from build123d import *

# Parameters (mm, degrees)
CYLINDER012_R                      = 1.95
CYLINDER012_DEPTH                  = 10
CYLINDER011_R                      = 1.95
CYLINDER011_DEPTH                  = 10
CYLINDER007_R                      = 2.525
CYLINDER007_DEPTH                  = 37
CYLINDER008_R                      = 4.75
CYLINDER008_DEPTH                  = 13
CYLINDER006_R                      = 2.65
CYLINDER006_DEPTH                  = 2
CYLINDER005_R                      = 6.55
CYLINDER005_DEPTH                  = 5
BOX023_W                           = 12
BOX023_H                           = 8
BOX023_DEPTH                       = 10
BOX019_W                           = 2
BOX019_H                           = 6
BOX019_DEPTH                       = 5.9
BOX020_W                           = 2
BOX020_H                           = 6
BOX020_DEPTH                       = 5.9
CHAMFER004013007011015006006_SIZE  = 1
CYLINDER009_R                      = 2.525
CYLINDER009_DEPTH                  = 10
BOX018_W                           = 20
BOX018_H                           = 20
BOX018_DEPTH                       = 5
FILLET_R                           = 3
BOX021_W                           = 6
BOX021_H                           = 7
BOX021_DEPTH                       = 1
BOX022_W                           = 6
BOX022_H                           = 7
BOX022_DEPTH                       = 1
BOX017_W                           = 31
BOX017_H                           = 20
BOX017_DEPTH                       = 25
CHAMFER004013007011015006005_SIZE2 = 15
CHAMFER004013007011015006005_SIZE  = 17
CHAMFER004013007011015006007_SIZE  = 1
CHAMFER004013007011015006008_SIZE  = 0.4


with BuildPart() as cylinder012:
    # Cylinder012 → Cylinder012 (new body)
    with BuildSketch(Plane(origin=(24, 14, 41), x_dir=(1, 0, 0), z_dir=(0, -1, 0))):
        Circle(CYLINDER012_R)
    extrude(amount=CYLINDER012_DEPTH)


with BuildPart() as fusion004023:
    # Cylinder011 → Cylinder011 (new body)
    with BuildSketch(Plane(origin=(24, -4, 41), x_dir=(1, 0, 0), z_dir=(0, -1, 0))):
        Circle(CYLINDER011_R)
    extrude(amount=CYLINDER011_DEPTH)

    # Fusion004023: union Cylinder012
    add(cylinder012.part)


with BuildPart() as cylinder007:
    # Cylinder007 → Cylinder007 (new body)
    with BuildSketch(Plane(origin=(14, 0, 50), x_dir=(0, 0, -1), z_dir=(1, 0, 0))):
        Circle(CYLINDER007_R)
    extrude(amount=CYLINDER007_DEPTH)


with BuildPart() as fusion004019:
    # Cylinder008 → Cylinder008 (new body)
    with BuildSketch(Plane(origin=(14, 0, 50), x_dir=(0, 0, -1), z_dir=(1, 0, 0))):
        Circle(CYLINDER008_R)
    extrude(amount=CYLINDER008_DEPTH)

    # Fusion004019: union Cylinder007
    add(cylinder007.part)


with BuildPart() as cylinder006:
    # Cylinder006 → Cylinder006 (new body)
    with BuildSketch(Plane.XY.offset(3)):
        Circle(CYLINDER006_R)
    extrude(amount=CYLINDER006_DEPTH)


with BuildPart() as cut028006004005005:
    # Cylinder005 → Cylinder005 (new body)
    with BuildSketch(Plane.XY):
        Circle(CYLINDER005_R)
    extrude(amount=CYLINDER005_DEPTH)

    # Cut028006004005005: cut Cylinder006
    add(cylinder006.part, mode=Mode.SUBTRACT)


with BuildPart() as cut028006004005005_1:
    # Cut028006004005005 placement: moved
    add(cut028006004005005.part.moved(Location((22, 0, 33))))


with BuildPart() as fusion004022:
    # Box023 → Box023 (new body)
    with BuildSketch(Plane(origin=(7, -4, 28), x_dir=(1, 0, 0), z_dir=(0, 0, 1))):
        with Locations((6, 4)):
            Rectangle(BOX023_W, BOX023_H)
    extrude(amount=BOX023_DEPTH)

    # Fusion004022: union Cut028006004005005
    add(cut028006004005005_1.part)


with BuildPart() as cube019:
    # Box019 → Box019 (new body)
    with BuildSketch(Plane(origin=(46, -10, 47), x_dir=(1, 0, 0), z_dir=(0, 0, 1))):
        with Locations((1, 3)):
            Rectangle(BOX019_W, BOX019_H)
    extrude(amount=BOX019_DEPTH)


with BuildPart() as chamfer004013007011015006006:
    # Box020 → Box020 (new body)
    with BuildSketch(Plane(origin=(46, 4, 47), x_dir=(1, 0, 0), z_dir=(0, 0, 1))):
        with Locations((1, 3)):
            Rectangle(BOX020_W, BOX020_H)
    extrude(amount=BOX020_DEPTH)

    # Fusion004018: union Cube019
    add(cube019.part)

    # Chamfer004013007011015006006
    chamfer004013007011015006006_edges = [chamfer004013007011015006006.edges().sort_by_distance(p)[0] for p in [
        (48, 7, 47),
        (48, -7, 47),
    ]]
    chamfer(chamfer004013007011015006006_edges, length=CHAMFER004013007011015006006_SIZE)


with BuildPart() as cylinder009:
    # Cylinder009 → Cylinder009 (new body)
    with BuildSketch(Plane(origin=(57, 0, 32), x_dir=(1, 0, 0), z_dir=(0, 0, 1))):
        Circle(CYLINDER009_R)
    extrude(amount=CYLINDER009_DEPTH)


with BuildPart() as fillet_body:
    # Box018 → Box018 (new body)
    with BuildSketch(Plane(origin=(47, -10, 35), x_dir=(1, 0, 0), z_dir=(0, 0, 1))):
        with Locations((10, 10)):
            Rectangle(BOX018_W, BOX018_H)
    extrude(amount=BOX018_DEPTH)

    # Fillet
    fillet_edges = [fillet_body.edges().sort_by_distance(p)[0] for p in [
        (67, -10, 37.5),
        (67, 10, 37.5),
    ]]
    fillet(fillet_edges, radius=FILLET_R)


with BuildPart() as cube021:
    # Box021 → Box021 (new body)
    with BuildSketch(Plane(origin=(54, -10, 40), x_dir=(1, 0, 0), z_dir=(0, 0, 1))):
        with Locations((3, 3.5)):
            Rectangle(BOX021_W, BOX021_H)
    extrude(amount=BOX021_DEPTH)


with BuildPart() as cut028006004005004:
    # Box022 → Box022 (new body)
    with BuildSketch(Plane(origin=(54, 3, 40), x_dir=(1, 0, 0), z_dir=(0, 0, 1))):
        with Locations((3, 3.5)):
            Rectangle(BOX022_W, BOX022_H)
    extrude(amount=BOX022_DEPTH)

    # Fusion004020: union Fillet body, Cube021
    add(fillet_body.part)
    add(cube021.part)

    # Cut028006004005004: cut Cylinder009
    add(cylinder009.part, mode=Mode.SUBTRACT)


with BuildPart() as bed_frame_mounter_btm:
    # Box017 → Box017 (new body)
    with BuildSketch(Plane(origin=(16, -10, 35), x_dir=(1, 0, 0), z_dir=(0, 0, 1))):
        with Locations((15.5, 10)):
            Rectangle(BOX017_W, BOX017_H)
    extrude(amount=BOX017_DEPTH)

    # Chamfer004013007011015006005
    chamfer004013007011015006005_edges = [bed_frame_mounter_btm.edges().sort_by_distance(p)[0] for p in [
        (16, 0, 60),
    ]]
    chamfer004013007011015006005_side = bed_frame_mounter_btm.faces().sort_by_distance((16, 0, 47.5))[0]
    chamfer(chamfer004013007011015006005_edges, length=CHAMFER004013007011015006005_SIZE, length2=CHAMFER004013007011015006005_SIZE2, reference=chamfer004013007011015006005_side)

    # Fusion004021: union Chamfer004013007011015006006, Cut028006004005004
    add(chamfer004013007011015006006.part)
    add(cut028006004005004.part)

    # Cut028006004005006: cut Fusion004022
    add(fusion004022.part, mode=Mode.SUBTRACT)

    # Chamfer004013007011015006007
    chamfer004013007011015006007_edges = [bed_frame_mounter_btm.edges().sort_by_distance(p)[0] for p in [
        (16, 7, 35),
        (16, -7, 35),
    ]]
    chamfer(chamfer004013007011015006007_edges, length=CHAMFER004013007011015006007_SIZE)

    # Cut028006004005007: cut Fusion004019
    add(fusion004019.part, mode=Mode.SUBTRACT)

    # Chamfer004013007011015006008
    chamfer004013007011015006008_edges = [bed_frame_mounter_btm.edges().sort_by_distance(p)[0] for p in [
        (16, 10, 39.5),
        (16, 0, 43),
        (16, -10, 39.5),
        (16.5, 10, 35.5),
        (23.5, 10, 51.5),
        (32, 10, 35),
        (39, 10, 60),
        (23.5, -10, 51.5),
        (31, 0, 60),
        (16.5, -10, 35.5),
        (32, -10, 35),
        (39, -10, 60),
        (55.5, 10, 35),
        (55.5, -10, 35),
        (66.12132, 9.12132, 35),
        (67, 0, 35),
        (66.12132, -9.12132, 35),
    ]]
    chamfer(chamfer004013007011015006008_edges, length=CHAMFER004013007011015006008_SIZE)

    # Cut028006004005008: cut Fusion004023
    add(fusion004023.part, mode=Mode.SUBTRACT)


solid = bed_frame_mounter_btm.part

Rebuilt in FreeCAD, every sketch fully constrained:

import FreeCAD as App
import Part
import Sketcher

V = App.Vector
Q = App.Units.Quantity


def edges_at(feature, points):
    """Names of the edges that pass closest to the given points."""
    edges = feature.Shape.Edges
    near = lambda p: min(range(len(edges)), key=lambda i: edges[i].distToShape(Part.Vertex(*p))[0])
    return sorted({f"Edge{near(p) + 1}" for p in points})

doc = App.newDocument("Part")
body = doc.addObject("PartDesign::Body", "Body")

sketch1 = body.newObject("Sketcher::SketchObject", "Sketch")
sketch1.AttachmentSupport = (doc.getObject("XZ_Plane"), [""])
sketch1.MapMode = "FlatFace"
sketch1.AttachmentOffset = App.Placement(V(0, 0, -14), App.Rotation())
sketch1.addGeometry(Part.Circle(V(24, 41, 0), V(0, 0, 1), 1.9), False)
sketch1.addConstraint([
    Sketcher.Constraint("Diameter", 0, Q("3.9 mm")),
    Sketcher.Constraint("DistanceX", -1, 1, 0, 3, Q("24 mm")),
    Sketcher.Constraint("DistanceY", -1, 1, 0, 3, Q("41 mm")),
])
pad1 = body.newObject("PartDesign::Pad", "Pad")
pad1.Profile = sketch1
pad1.Length = 10
body2 = doc.addObject("PartDesign::Body", "Body001")
body2.AllowCompound = True

sketch2 = body2.newObject("Sketcher::SketchObject", "Sketch001")
sketch2.AttachmentSupport = (doc.getObject("XZ_Plane001"), [""])
sketch2.MapMode = "FlatFace"
sketch2.AttachmentOffset = App.Placement(V(0, 0, 4), App.Rotation())
sketch2.addGeometry(Part.Circle(V(24, 41, 0), V(0, 0, 1), 1.9), False)
sketch2.addConstraint([
    Sketcher.Constraint("Diameter", 0, Q("3.9 mm")),
    Sketcher.Constraint("DistanceX", -1, 1, 0, 3, Q("24 mm")),
    Sketcher.Constraint("DistanceY", -1, 1, 0, 3, Q("41 mm")),
])
pad2 = body2.newObject("PartDesign::Pad", "Pad001")
pad2.Profile = sketch2
pad2.Length = 10
doc.recompute()

boolean = body2.newObject("PartDesign::Boolean", "Boolean")
boolean.Type = "Fuse"
boolean.addObjects([body])
body3 = doc.addObject("PartDesign::Body", "Body002")

sketch3 = body3.newObject("Sketcher::SketchObject", "Sketch002")
sketch3.AttachmentSupport = (doc.getObject("YZ_Plane002"), [""])
sketch3.MapMode = "FlatFace"
sketch3.AttachmentOffset = App.Placement(V(0, 0, 14), App.Rotation())
sketch3.addGeometry(Part.Circle(V(0, 50, 0), V(0, 0, 1), 2.5), False)
sketch3.addConstraint([
    Sketcher.Constraint("PointOnObject", 0, 3, -2),
    Sketcher.Constraint("Diameter", 0, Q("5.05 mm")),
    Sketcher.Constraint("DistanceY", -1, 1, 0, 3, Q("50 mm")),
])
pad3 = body3.newObject("PartDesign::Pad", "Pad002")
pad3.Profile = sketch3
pad3.Length = 37
body4 = doc.addObject("PartDesign::Body", "Body003")

sketch4 = body4.newObject("Sketcher::SketchObject", "Sketch003")
sketch4.AttachmentSupport = (doc.getObject("YZ_Plane003"), [""])
sketch4.MapMode = "FlatFace"
sketch4.AttachmentOffset = App.Placement(V(0, 0, 14), App.Rotation())
sketch4.addGeometry(Part.Circle(V(0, 50, 0), V(0, 0, 1), 4.8), False)
sketch4.addConstraint([
    Sketcher.Constraint("PointOnObject", 0, 3, -2),
    Sketcher.Constraint("Diameter", 0, Q("9.5 mm")),
    Sketcher.Constraint("DistanceY", -1, 1, 0, 3, Q("50 mm")),
])
pad4 = body4.newObject("PartDesign::Pad", "Pad003")
pad4.Profile = sketch4
pad4.Length = 13
doc.recompute()

boolean2 = body4.newObject("PartDesign::Boolean", "Boolean001")
boolean2.Type = "Fuse"
boolean2.addObjects([body3])
body5 = doc.addObject("PartDesign::Body", "Body004")

sketch5 = body5.newObject("Sketcher::SketchObject", "Sketch004")
sketch5.AttachmentSupport = (doc.getObject("XY_Plane004"), [""])
sketch5.MapMode = "FlatFace"
sketch5.AttachmentOffset = App.Placement(V(0, 0, 3), App.Rotation())
sketch5.addGeometry(Part.Circle(V(0, 0, 0), V(0, 0, 1), 2.6), False)
sketch5.addConstraint([
    Sketcher.Constraint("Coincident", 0, 3, -1, 1),
    Sketcher.Constraint("Diameter", 0, Q("5.3 mm")),
])
pad5 = body5.newObject("PartDesign::Pad", "Pad004")
pad5.Profile = sketch5
pad5.Length = 2
body6 = doc.addObject("PartDesign::Body", "Body005")

sketch6 = body6.newObject("Sketcher::SketchObject", "Sketch005")
sketch6.AttachmentSupport = (doc.getObject("XY_Plane005"), [""])
sketch6.MapMode = "FlatFace"
sketch6.addGeometry(Part.Circle(V(0, 0, 0), V(0, 0, 1), 7), False)
sketch6.addConstraint([
    Sketcher.Constraint("Coincident", 0, 3, -1, 1),
    Sketcher.Constraint("Diameter", 0, Q("13.1 mm")),
])
pad6 = body6.newObject("PartDesign::Pad", "Pad005")
pad6.Profile = sketch6
pad6.Length = 5
doc.recompute()

boolean3 = body6.newObject("PartDesign::Boolean", "Boolean002")
boolean3.Type = "Cut"
boolean3.addObjects([body5])
body7 = doc.addObject("PartDesign::Body", "Body006")
doc.recompute()

body6.Placement = App.Placement(V(22, 0, 33), App.Rotation(V(0, 0, 1), 0))
boolean4 = body7.newObject("PartDesign::Boolean", "Boolean003")
boolean4.Type = "Fuse"
boolean4.addObjects([body6])
body8 = doc.addObject("PartDesign::Body", "Body007")

sketch7 = body8.newObject("Sketcher::SketchObject", "Sketch006")
sketch7.AttachmentSupport = (doc.getObject("XY_Plane007"), [""])
sketch7.MapMode = "FlatFace"
sketch7.AttachmentOffset = App.Placement(V(0, 0, 28), App.Rotation())
sketch7.addGeometry([
    Part.LineSegment(V(7, 4, 0), V(7, -4, 0)),
    Part.LineSegment(V(7, -4, 0), V(19, -4, 0)),
    Part.LineSegment(V(19, -4, 0), V(19, 4, 0)),
    Part.LineSegment(V(19, 4, 0), V(7, 4, 0)),
], False)
sketch7.addConstraint([
    Sketcher.Constraint("Coincident", 0, 2, 1, 1),
    Sketcher.Constraint("Coincident", 1, 2, 2, 1),
    Sketcher.Constraint("Coincident", 2, 2, 3, 1),
    Sketcher.Constraint("Coincident", 3, 2, 0, 1),
    Sketcher.Constraint("Vertical", 0),
    Sketcher.Constraint("Horizontal", 1),
    Sketcher.Constraint("Vertical", 2),
    Sketcher.Constraint("Horizontal", 3),
    Sketcher.Constraint("DistanceX", 1, 1, 1, 2, Q("12 mm")),
    Sketcher.Constraint("DistanceY", 0, 2, 0, 1, Q("8 mm")),
    Sketcher.Constraint("DistanceX", -1, 1, 0, 2, Q("7 mm")),
    Sketcher.Constraint("DistanceY", 0, 2, -1, 1, Q("4 mm")),
])
pad7 = body8.newObject("PartDesign::Pad", "Pad006")
pad7.Profile = sketch7
pad7.Length = 10
doc.recompute()

boolean5 = body8.newObject("PartDesign::Boolean", "Boolean004")
boolean5.Type = "Fuse"
boolean5.addObjects([body7])
body9 = doc.addObject("PartDesign::Body", "Body008")

sketch8 = body9.newObject("Sketcher::SketchObject", "Sketch007")
sketch8.AttachmentSupport = (doc.getObject("XY_Plane008"), [""])
sketch8.MapMode = "FlatFace"
sketch8.AttachmentOffset = App.Placement(V(0, 0, 47), App.Rotation())
sketch8.addGeometry([
    Part.LineSegment(V(46, -4, 0), V(46, -10, 0)),
    Part.LineSegment(V(46, -10, 0), V(48, -10, 0)),
    Part.LineSegment(V(48, -10, 0), V(48, -4, 0)),
    Part.LineSegment(V(48, -4, 0), V(46, -4, 0)),
], False)
sketch8.addConstraint([
    Sketcher.Constraint("Coincident", 0, 2, 1, 1),
    Sketcher.Constraint("Coincident", 1, 2, 2, 1),
    Sketcher.Constraint("Coincident", 2, 2, 3, 1),
    Sketcher.Constraint("Coincident", 3, 2, 0, 1),
    Sketcher.Constraint("Vertical", 0),
    Sketcher.Constraint("Horizontal", 1),
    Sketcher.Constraint("Vertical", 2),
    Sketcher.Constraint("Horizontal", 3),
    Sketcher.Constraint("DistanceX", 1, 1, 1, 2, Q("2 mm")),
    Sketcher.Constraint("DistanceY", 0, 2, 0, 1, Q("6 mm")),
    Sketcher.Constraint("DistanceX", -1, 1, 0, 2, Q("46 mm")),
    Sketcher.Constraint("DistanceY", 0, 2, -1, 1, Q("10 mm")),
])
pad8 = body9.newObject("PartDesign::Pad", "Pad007")
pad8.Profile = sketch8
pad8.Length = 5.9
body10 = doc.addObject("PartDesign::Body", "Body009")
body10.AllowCompound = True

sketch9 = body10.newObject("Sketcher::SketchObject", "Sketch008")
sketch9.AttachmentSupport = (doc.getObject("XY_Plane009"), [""])
sketch9.MapMode = "FlatFace"
sketch9.AttachmentOffset = App.Placement(V(0, 0, 47), App.Rotation())
sketch9.addGeometry([
    Part.LineSegment(V(46, 10, 0), V(46, 4, 0)),
    Part.LineSegment(V(46, 4, 0), V(48, 4, 0)),
    Part.LineSegment(V(48, 4, 0), V(48, 10, 0)),
    Part.LineSegment(V(48, 10, 0), V(46, 10, 0)),
], False)
sketch9.addConstraint([
    Sketcher.Constraint("Coincident", 0, 2, 1, 1),
    Sketcher.Constraint("Coincident", 1, 2, 2, 1),
    Sketcher.Constraint("Coincident", 2, 2, 3, 1),
    Sketcher.Constraint("Coincident", 3, 2, 0, 1),
    Sketcher.Constraint("Vertical", 0),
    Sketcher.Constraint("Horizontal", 1),
    Sketcher.Constraint("Vertical", 2),
    Sketcher.Constraint("Horizontal", 3),
    Sketcher.Constraint("DistanceX", 1, 1, 1, 2, Q("2 mm")),
    Sketcher.Constraint("DistanceY", 0, 2, 0, 1, Q("6 mm")),
    Sketcher.Constraint("DistanceX", -1, 1, 0, 2, Q("46 mm")),
    Sketcher.Constraint("DistanceY", -1, 1, 0, 2, Q("4 mm")),
])
pad9 = body10.newObject("PartDesign::Pad", "Pad008")
pad9.Profile = sketch9
pad9.Length = 5.9
doc.recompute()

boolean6 = body10.newObject("PartDesign::Boolean", "Boolean005")
boolean6.Type = "Fuse"
boolean6.addObjects([body9])
doc.recompute()

chamfer = body10.newObject("PartDesign::Chamfer", "Chamfer")
chamfer.Base = (boolean6, edges_at(boolean6, [(48, 7, 47), (48, -7, 47)]))
chamfer.Size = 1
body11 = doc.addObject("PartDesign::Body", "Body010")

sketch10 = body11.newObject("Sketcher::SketchObject", "Sketch009")
sketch10.AttachmentSupport = (doc.getObject("XY_Plane010"), [""])
sketch10.MapMode = "FlatFace"
sketch10.AttachmentOffset = App.Placement(V(0, 0, 32), App.Rotation())
sketch10.addGeometry(Part.Circle(V(57, 0, 0), V(0, 0, 1), 2.5), False)
sketch10.addConstraint([
    Sketcher.Constraint("PointOnObject", 0, 3, -1),
    Sketcher.Constraint("Diameter", 0, Q("5.05 mm")),
    Sketcher.Constraint("DistanceX", -1, 1, 0, 3, Q("57 mm")),
])
pad10 = body11.newObject("PartDesign::Pad", "Pad009")
pad10.Profile = sketch10
pad10.Length = 10
body12 = doc.addObject("PartDesign::Body", "Body011")

sketch11 = body12.newObject("Sketcher::SketchObject", "Sketch010")
sketch11.AttachmentSupport = (doc.getObject("XY_Plane011"), [""])
sketch11.MapMode = "FlatFace"
sketch11.AttachmentOffset = App.Placement(V(0, 0, 35), App.Rotation())
sketch11.addGeometry([
    Part.LineSegment(V(47, 10, 0), V(47, -10, 0)),
    Part.LineSegment(V(47, -10, 0), V(67, -10, 0)),
    Part.LineSegment(V(67, -10, 0), V(67, 10, 0)),
    Part.LineSegment(V(67, 10, 0), V(47, 10, 0)),
], False)
sketch11.addConstraint([
    Sketcher.Constraint("Coincident", 0, 2, 1, 1),
    Sketcher.Constraint("Coincident", 1, 2, 2, 1),
    Sketcher.Constraint("Coincident", 2, 2, 3, 1),
    Sketcher.Constraint("Coincident", 3, 2, 0, 1),
    Sketcher.Constraint("Vertical", 0),
    Sketcher.Constraint("Horizontal", 1),
    Sketcher.Constraint("Vertical", 2),
    Sketcher.Constraint("Horizontal", 3),
    Sketcher.Constraint("Equal", 3, 0),
    Sketcher.Constraint("DistanceX", 1, 1, 1, 2, Q("20 mm")),
    Sketcher.Constraint("DistanceX", -1, 1, 0, 2, Q("47 mm")),
    Sketcher.Constraint("DistanceY", 0, 2, -1, 1, Q("10 mm")),
])
pad11 = body12.newObject("PartDesign::Pad", "Pad010")
pad11.Profile = sketch11
pad11.Length = 5
doc.recompute()

fillet = body12.newObject("PartDesign::Fillet", "Fillet")
fillet.Base = (pad11, edges_at(pad11, [(67, -10, 37.5), (67, 10, 37.5)]))
fillet.Radius = 3
body13 = doc.addObject("PartDesign::Body", "Body012")

sketch12 = body13.newObject("Sketcher::SketchObject", "Sketch011")
sketch12.AttachmentSupport = (doc.getObject("XY_Plane012"), [""])
sketch12.MapMode = "FlatFace"
sketch12.AttachmentOffset = App.Placement(V(0, 0, 40), App.Rotation())
sketch12.addGeometry([
    Part.LineSegment(V(54, -3, 0), V(54, -10, 0)),
    Part.LineSegment(V(54, -10, 0), V(60, -10, 0)),
    Part.LineSegment(V(60, -10, 0), V(60, -3, 0)),
    Part.LineSegment(V(60, -3, 0), V(54, -3, 0)),
], False)
sketch12.addConstraint([
    Sketcher.Constraint("Coincident", 0, 2, 1, 1),
    Sketcher.Constraint("Coincident", 1, 2, 2, 1),
    Sketcher.Constraint("Coincident", 2, 2, 3, 1),
    Sketcher.Constraint("Coincident", 3, 2, 0, 1),
    Sketcher.Constraint("Vertical", 0),
    Sketcher.Constraint("Horizontal", 1),
    Sketcher.Constraint("Vertical", 2),
    Sketcher.Constraint("Horizontal", 3),
    Sketcher.Constraint("DistanceX", 1, 1, 1, 2, Q("6 mm")),
    Sketcher.Constraint("DistanceY", 0, 2, 0, 1, Q("7 mm")),
    Sketcher.Constraint("DistanceX", -1, 1, 0, 2, Q("54 mm")),
    Sketcher.Constraint("DistanceY", 0, 2, -1, 1, Q("10 mm")),
])
pad12 = body13.newObject("PartDesign::Pad", "Pad011")
pad12.Profile = sketch12
pad12.Length = 1
body14 = doc.addObject("PartDesign::Body", "Body013")

sketch13 = body14.newObject("Sketcher::SketchObject", "Sketch012")
sketch13.AttachmentSupport = (doc.getObject("XY_Plane013"), [""])
sketch13.MapMode = "FlatFace"
sketch13.AttachmentOffset = App.Placement(V(0, 0, 40), App.Rotation())
sketch13.addGeometry([
    Part.LineSegment(V(54, 10, 0), V(54, 3, 0)),
    Part.LineSegment(V(54, 3, 0), V(60, 3, 0)),
    Part.LineSegment(V(60, 3, 0), V(60, 10, 0)),
    Part.LineSegment(V(60, 10, 0), V(54, 10, 0)),
], False)
sketch13.addConstraint([
    Sketcher.Constraint("Coincident", 0, 2, 1, 1),
    Sketcher.Constraint("Coincident", 1, 2, 2, 1),
    Sketcher.Constraint("Coincident", 2, 2, 3, 1),
    Sketcher.Constraint("Coincident", 3, 2, 0, 1),
    Sketcher.Constraint("Vertical", 0),
    Sketcher.Constraint("Horizontal", 1),
    Sketcher.Constraint("Vertical", 2),
    Sketcher.Constraint("Horizontal", 3),
    Sketcher.Constraint("DistanceX", 1, 1, 1, 2, Q("6 mm")),
    Sketcher.Constraint("DistanceY", 0, 2, 0, 1, Q("7 mm")),
    Sketcher.Constraint("DistanceX", -1, 1, 0, 2, Q("54 mm")),
    Sketcher.Constraint("DistanceY", -1, 1, 0, 2, Q("3 mm")),
])
pad13 = body14.newObject("PartDesign::Pad", "Pad012")
pad13.Profile = sketch13
pad13.Length = 1
doc.recompute()

boolean7 = body14.newObject("PartDesign::Boolean", "Boolean006")
boolean7.Type = "Fuse"
boolean7.addObjects([body12])
doc.recompute()

boolean8 = body14.newObject("PartDesign::Boolean", "Boolean007")
boolean8.Type = "Fuse"
boolean8.addObjects([body13])
doc.recompute()

boolean9 = body14.newObject("PartDesign::Boolean", "Boolean008")
boolean9.Type = "Cut"
boolean9.addObjects([body11])
body15 = doc.addObject("PartDesign::Body", "Body014")

sketch14 = body15.newObject("Sketcher::SketchObject", "Sketch013")
sketch14.AttachmentSupport = (doc.getObject("XY_Plane014"), [""])
sketch14.MapMode = "FlatFace"
sketch14.AttachmentOffset = App.Placement(V(0, 0, 35), App.Rotation())
sketch14.addGeometry([
    Part.LineSegment(V(16, 10, 0), V(16, -10, 0)),
    Part.LineSegment(V(16, -10, 0), V(47, -10, 0)),
    Part.LineSegment(V(47, -10, 0), V(47, 10, 0)),
    Part.LineSegment(V(47, 10, 0), V(16, 10, 0)),
], False)
sketch14.addConstraint([
    Sketcher.Constraint("Coincident", 0, 2, 1, 1),
    Sketcher.Constraint("Coincident", 1, 2, 2, 1),
    Sketcher.Constraint("Coincident", 2, 2, 3, 1),
    Sketcher.Constraint("Coincident", 3, 2, 0, 1),
    Sketcher.Constraint("Vertical", 0),
    Sketcher.Constraint("Horizontal", 1),
    Sketcher.Constraint("Vertical", 2),
    Sketcher.Constraint("Horizontal", 3),
    Sketcher.Constraint("DistanceX", 1, 1, 1, 2, Q("31 mm")),
    Sketcher.Constraint("DistanceY", 0, 2, 0, 1, Q("20 mm")),
    Sketcher.Constraint("DistanceX", -1, 1, 0, 2, Q("16 mm")),
    Sketcher.Constraint("DistanceY", 0, 2, -1, 1, Q("10 mm")),
])
pad14 = body15.newObject("PartDesign::Pad", "Pad013")
pad14.Profile = sketch14
pad14.Length = 25
doc.recompute()

chamfer2 = body15.newObject("PartDesign::Chamfer", "Chamfer001")
chamfer2.Base = (pad14, edges_at(pad14, [(16, 0, 60)]))
chamfer2.ChamferType = "Two distances"
chamfer2.Size = 17
chamfer2.Size2 = 15
doc.recompute()

boolean10 = body15.newObject("PartDesign::Boolean", "Boolean009")
boolean10.Type = "Fuse"
boolean10.addObjects([body10])
doc.recompute()

boolean11 = body15.newObject("PartDesign::Boolean", "Boolean010")
boolean11.Type = "Fuse"
boolean11.addObjects([body14])
doc.recompute()

boolean12 = body15.newObject("PartDesign::Boolean", "Boolean011")
boolean12.Type = "Cut"
boolean12.addObjects([body8])
doc.recompute()

chamfer3 = body15.newObject("PartDesign::Chamfer", "Chamfer002")
chamfer3.Base = (boolean12, edges_at(boolean12, [(16, 7, 35), (16, -7, 35)]))
chamfer3.Size = 1
doc.recompute()

boolean13 = body15.newObject("PartDesign::Boolean", "Boolean012")
boolean13.Type = "Cut"
boolean13.addObjects([body4])
doc.recompute()

chamfer4 = body15.newObject("PartDesign::Chamfer", "Chamfer003")
chamfer4.Base = (boolean13, edges_at(boolean13, [
    (16, 10, 39.5),
    (16, 0, 43),
    (16, -10, 39.5),
    (16.5, 10, 35.5),
    (23.5, 10, 51.5),
    (40.5, 10, 35),
    (39, 10, 60),
    (23.5, -10, 51.5),
    (31, 0, 60),
    (16.5, -10, 35.5),
    (40.5, -10, 35),
    (39, -10, 60),
    (40.5, 10, 35),
    (40.5, -10, 35),
    (66.121, 9.121, 35),
    (67, 0, 35),
    (66.121, -9.121, 35),
]))
chamfer4.Size = 0.4
doc.recompute()

boolean14 = body15.newObject("PartDesign::Boolean", "Boolean013")
boolean14.Type = "Cut"
boolean14.addObjects([body2])

doc.recompute()
